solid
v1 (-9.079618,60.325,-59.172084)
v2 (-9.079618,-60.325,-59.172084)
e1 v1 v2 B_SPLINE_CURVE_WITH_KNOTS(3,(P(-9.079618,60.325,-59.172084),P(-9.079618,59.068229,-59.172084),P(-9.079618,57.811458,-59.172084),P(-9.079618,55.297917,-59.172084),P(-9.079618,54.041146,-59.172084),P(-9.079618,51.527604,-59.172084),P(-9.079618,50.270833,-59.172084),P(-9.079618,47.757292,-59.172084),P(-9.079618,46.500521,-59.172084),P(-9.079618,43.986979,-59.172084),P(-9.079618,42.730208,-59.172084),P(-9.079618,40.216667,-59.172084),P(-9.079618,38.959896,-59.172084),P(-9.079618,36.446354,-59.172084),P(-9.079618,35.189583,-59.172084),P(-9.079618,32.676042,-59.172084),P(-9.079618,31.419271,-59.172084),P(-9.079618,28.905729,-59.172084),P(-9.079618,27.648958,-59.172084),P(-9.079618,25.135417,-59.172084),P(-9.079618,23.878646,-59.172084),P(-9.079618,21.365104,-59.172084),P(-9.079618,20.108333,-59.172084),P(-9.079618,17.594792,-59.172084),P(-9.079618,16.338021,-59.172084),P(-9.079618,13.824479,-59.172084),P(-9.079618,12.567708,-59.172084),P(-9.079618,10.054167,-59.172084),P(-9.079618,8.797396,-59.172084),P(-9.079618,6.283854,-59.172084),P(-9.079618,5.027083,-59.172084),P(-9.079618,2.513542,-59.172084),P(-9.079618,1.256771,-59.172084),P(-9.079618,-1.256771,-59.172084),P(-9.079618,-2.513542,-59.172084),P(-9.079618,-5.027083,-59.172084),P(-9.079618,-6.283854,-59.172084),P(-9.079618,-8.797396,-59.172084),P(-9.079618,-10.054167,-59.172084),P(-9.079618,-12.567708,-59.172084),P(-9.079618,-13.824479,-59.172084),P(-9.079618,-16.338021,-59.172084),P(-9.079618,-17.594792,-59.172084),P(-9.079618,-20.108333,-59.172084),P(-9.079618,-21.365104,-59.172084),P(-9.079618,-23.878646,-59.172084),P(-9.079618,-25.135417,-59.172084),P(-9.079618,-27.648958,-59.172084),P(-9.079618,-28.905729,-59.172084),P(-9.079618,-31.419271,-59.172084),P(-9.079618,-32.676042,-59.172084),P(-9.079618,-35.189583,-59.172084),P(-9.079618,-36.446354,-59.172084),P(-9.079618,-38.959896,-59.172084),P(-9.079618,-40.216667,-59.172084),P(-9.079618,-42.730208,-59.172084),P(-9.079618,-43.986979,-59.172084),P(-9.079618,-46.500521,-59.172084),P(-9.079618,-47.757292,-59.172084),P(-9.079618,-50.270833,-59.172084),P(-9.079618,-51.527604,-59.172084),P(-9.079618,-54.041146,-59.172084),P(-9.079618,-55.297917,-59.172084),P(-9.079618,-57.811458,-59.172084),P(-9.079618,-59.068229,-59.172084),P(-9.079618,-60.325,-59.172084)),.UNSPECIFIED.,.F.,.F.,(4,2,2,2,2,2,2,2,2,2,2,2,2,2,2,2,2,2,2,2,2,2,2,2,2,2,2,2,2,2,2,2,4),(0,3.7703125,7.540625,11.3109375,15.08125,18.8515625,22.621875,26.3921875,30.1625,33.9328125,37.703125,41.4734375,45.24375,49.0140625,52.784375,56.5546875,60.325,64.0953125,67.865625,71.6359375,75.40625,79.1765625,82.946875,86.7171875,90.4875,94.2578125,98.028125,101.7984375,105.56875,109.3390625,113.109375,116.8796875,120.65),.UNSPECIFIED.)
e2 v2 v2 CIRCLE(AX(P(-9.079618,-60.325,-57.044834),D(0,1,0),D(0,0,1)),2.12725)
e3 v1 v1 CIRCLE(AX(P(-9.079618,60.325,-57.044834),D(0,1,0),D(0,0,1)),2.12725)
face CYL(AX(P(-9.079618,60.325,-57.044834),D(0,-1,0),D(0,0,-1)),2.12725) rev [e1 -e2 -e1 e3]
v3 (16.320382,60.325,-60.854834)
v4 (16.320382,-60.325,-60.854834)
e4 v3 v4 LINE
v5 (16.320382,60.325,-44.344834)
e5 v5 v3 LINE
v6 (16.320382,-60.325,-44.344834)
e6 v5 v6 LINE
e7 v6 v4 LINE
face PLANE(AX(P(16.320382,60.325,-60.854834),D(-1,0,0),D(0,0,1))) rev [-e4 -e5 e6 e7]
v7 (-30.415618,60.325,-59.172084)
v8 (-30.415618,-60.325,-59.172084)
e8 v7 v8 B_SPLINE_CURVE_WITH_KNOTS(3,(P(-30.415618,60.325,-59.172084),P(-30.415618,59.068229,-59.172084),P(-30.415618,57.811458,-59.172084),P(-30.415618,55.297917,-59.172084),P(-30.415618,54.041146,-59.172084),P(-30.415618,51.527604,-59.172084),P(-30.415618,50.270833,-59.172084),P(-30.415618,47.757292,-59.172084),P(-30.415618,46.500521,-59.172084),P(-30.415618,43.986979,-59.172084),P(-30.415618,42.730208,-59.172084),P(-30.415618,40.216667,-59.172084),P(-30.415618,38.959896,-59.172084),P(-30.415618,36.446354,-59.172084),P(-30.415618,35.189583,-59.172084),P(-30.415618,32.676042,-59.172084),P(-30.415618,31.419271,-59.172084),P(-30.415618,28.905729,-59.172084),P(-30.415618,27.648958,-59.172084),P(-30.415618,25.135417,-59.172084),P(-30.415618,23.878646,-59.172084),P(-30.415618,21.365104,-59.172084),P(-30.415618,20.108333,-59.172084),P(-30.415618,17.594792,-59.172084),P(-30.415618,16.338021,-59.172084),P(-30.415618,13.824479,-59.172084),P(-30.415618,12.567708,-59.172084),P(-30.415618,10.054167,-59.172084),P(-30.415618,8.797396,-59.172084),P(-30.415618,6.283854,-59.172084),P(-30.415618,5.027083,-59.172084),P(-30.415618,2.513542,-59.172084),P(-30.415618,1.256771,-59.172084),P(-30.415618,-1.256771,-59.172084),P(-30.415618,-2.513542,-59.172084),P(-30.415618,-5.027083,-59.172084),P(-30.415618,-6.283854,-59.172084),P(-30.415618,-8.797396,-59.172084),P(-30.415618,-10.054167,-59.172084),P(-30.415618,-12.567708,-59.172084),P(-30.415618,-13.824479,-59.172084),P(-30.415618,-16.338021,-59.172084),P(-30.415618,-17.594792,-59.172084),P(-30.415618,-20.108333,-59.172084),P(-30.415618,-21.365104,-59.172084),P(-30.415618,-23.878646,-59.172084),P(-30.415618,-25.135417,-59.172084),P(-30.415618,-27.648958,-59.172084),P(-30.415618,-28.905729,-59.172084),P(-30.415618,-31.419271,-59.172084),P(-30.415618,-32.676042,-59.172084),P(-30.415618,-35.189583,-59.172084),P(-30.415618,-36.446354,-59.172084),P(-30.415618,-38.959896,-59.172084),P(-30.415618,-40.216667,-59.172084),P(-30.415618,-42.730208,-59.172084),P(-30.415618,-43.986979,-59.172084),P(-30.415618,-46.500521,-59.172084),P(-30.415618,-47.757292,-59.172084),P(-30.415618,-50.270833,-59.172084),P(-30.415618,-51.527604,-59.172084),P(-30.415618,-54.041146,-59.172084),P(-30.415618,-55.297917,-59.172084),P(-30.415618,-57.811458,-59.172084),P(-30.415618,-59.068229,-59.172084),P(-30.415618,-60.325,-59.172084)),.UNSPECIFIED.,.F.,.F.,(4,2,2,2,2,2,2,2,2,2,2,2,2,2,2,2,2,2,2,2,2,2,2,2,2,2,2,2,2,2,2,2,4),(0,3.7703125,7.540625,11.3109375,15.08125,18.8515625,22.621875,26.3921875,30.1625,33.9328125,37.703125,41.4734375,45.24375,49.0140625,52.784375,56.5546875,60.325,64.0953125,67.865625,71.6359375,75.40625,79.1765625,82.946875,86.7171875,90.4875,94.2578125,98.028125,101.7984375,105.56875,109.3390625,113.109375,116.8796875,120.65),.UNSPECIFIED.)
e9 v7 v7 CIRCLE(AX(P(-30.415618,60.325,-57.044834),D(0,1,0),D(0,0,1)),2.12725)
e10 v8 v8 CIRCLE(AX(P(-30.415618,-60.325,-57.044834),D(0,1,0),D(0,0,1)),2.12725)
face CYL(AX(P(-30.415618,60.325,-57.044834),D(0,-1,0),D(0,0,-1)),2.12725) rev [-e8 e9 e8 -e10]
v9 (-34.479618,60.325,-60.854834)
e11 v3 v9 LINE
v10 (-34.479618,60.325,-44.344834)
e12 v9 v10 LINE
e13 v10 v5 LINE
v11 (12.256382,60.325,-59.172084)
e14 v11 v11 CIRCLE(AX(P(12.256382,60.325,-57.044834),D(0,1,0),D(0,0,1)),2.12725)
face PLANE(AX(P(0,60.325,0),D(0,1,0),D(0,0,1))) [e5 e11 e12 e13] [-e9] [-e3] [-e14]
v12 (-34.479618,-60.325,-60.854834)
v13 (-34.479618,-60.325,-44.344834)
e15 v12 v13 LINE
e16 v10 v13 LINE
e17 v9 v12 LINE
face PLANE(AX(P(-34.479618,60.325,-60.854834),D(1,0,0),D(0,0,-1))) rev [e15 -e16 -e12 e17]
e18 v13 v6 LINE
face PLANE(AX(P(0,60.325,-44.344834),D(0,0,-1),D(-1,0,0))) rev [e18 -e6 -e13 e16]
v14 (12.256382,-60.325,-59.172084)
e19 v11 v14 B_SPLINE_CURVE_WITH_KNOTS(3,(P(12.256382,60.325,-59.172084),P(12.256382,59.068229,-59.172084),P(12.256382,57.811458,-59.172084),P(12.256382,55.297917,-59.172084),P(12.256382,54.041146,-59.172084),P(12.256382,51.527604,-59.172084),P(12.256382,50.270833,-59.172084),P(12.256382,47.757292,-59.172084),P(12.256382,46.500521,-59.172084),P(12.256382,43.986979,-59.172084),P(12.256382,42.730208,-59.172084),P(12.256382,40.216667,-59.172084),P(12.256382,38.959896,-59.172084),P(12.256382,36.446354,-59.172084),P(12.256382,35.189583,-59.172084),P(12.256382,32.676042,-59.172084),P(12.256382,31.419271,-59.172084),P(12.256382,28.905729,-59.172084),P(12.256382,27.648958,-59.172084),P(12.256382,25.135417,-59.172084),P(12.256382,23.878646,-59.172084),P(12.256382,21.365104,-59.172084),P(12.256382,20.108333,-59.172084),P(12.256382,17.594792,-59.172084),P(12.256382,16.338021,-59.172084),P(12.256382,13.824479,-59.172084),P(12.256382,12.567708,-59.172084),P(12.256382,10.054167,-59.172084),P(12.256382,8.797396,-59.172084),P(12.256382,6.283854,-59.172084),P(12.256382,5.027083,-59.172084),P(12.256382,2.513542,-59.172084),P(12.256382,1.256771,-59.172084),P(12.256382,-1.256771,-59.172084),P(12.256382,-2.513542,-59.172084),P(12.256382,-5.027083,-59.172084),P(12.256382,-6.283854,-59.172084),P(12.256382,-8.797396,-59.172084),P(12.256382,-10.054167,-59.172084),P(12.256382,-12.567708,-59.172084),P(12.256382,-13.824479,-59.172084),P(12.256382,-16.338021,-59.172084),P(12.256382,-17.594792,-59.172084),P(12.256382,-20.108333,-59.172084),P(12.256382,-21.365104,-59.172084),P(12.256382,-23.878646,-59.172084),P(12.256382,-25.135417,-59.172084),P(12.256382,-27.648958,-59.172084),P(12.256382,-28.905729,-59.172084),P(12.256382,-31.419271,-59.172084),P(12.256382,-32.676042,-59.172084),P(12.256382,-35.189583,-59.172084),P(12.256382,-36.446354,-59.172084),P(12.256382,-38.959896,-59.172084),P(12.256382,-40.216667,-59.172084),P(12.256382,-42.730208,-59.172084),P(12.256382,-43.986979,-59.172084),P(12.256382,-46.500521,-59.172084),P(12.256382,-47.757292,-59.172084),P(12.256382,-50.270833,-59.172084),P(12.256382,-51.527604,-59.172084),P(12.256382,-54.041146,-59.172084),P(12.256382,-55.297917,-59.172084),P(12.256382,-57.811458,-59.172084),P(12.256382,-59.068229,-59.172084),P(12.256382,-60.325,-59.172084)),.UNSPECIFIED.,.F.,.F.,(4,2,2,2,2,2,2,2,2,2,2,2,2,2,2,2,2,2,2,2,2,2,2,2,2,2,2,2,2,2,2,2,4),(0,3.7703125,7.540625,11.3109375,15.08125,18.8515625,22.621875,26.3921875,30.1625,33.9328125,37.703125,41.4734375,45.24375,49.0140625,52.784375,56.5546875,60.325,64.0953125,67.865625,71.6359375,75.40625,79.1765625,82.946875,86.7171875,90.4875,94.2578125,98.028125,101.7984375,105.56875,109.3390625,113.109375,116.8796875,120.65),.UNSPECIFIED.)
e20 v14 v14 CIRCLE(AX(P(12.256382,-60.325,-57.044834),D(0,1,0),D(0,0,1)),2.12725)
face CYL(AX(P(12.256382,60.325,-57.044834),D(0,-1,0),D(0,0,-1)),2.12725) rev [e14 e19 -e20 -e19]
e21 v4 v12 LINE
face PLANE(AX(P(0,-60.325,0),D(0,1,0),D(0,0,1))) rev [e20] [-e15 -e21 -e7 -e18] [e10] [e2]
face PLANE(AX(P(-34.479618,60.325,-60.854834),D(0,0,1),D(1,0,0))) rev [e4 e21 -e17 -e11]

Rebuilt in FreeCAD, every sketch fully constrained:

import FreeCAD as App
import Part
import Sketcher

V = App.Vector
Q = App.Units.Quantity


def add_polygon(sketch, points):
    """Adds a closed chain of lines whose ends are joined by coincident constraints."""
    first, n = sketch.GeometryCount, len(points)
    for a, b in zip(points, points[1:] + points[:1]):
        sketch.addGeometry(Part.LineSegment(App.Vector(*a, 0), App.Vector(*b, 0)), False)
    for i in range(n):
        sketch.addConstraint(Sketcher.Constraint("Coincident", first + i, 2, first + (i + 1) % n, 1))

doc = App.newDocument("Part")
body = doc.addObject("PartDesign::Body", "Body")

sketch1 = body.newObject("Sketcher::SketchObject", "Sketch")
sketch1.AttachmentSupport = (doc.getObject("XZ_Plane"), [""])
sketch1.MapMode = "FlatFace"
add_polygon(sketch1, [(-34.479618, -60.854834), (-34.479618, -53.234834), (16.320382, -53.234834), (16.320382, -60.854834)])
sketch1.addGeometry(Part.Circle(V(-30.415618, -57.044834, 0), V(0, 0, 1), 2.12725), False)
sketch1.addGeometry(Part.Circle(V(-9.079618, -57.044834, 0), V(0, 0, 1), 2.12725), False)
sketch1.addGeometry(Part.Circle(V(12.256382, -57.044834, 0), V(0, 0, 1), 2.12725), False)
sketch1.addConstraint([
    Sketcher.Constraint("Vertical", 0),
    Sketcher.Constraint("Horizontal", 1),
    Sketcher.Constraint("Vertical", 2),
    Sketcher.Constraint("Horizontal", 3),
    Sketcher.Constraint("Equal", 4, 5),
    Sketcher.Constraint("Equal", 5, 6),
    Sketcher.Constraint("Horizontal", 4, 3, 5, 3),
    Sketcher.Constraint("Horizontal", 5, 3, 6, 3),
    Sketcher.Constraint("DistanceX", 1, 1, 1, 2, Q("2 in")),
    Sketcher.Constraint("DistanceY", 0, 1, 0, 2, Q("0.3 in")),
    Sketcher.Constraint("DistanceX", 0, 2, 5, 3, Q("1 in")),
    Sketcher.Constraint("Diameter", 4, Q("0.1675 in")),
    Sketcher.Constraint("DistanceX", 4, 3, 5, 3, Q("0.84 in")),
    Sketcher.Constraint("DistanceX", 5, 3, 6, 3, Q("0.84 in")),
    Sketcher.Constraint("DistanceY", 4, 3, 0, 2, Q("0.15 in")),
    Sketcher.Constraint("DistanceX", 4, 3, -1, 1, Q("30.415618 mm")),
    Sketcher.Constraint("DistanceY", 4, 3, -1, 1, Q("57.044834 mm")),
])
pad1 = body.newObject("PartDesign::Pad", "Pad")
pad1.Profile = sketch1
pad1.Length = Q("4.75 in")
pad1.Midplane = True

sketch2 = body.newObject("Sketcher::SketchObject", "Sketch001")
sketch2.AttachmentSupport = (doc.getObject("XZ_Plane"), [""])
sketch2.MapMode = "FlatFace"
add_polygon(sketch2, [(-34.479618, -53.234834), (-34.479618, -44.344834), (16.320382, -44.344834), (16.320382, -53.234834)])
sketch2.addConstraint([
    Sketcher.Constraint("Vertical", 0),
    Sketcher.Constraint("Horizontal", 1),
    Sketcher.Constraint("Vertical", 2),
    Sketcher.Constraint("Horizontal", 3),
    Sketcher.Constraint("DistanceX", 1, 1, 1, 2, Q("2 in")),
    Sketcher.Constraint("DistanceY", 0, 1, 0, 2, Q("0.35 in")),
    Sketcher.Constraint("DistanceX", 0, 2, -1, 1, Q("34.479618 mm")),
    Sketcher.Constraint("DistanceY", 0, 2, -1, 1, Q("44.344834 mm")),
])
pad2 = body.newObject("PartDesign::Pad", "Pad001")
pad2.Profile = sketch2
pad2.Length = Q("4.75 in")
pad2.Midplane = True

doc.recompute()
